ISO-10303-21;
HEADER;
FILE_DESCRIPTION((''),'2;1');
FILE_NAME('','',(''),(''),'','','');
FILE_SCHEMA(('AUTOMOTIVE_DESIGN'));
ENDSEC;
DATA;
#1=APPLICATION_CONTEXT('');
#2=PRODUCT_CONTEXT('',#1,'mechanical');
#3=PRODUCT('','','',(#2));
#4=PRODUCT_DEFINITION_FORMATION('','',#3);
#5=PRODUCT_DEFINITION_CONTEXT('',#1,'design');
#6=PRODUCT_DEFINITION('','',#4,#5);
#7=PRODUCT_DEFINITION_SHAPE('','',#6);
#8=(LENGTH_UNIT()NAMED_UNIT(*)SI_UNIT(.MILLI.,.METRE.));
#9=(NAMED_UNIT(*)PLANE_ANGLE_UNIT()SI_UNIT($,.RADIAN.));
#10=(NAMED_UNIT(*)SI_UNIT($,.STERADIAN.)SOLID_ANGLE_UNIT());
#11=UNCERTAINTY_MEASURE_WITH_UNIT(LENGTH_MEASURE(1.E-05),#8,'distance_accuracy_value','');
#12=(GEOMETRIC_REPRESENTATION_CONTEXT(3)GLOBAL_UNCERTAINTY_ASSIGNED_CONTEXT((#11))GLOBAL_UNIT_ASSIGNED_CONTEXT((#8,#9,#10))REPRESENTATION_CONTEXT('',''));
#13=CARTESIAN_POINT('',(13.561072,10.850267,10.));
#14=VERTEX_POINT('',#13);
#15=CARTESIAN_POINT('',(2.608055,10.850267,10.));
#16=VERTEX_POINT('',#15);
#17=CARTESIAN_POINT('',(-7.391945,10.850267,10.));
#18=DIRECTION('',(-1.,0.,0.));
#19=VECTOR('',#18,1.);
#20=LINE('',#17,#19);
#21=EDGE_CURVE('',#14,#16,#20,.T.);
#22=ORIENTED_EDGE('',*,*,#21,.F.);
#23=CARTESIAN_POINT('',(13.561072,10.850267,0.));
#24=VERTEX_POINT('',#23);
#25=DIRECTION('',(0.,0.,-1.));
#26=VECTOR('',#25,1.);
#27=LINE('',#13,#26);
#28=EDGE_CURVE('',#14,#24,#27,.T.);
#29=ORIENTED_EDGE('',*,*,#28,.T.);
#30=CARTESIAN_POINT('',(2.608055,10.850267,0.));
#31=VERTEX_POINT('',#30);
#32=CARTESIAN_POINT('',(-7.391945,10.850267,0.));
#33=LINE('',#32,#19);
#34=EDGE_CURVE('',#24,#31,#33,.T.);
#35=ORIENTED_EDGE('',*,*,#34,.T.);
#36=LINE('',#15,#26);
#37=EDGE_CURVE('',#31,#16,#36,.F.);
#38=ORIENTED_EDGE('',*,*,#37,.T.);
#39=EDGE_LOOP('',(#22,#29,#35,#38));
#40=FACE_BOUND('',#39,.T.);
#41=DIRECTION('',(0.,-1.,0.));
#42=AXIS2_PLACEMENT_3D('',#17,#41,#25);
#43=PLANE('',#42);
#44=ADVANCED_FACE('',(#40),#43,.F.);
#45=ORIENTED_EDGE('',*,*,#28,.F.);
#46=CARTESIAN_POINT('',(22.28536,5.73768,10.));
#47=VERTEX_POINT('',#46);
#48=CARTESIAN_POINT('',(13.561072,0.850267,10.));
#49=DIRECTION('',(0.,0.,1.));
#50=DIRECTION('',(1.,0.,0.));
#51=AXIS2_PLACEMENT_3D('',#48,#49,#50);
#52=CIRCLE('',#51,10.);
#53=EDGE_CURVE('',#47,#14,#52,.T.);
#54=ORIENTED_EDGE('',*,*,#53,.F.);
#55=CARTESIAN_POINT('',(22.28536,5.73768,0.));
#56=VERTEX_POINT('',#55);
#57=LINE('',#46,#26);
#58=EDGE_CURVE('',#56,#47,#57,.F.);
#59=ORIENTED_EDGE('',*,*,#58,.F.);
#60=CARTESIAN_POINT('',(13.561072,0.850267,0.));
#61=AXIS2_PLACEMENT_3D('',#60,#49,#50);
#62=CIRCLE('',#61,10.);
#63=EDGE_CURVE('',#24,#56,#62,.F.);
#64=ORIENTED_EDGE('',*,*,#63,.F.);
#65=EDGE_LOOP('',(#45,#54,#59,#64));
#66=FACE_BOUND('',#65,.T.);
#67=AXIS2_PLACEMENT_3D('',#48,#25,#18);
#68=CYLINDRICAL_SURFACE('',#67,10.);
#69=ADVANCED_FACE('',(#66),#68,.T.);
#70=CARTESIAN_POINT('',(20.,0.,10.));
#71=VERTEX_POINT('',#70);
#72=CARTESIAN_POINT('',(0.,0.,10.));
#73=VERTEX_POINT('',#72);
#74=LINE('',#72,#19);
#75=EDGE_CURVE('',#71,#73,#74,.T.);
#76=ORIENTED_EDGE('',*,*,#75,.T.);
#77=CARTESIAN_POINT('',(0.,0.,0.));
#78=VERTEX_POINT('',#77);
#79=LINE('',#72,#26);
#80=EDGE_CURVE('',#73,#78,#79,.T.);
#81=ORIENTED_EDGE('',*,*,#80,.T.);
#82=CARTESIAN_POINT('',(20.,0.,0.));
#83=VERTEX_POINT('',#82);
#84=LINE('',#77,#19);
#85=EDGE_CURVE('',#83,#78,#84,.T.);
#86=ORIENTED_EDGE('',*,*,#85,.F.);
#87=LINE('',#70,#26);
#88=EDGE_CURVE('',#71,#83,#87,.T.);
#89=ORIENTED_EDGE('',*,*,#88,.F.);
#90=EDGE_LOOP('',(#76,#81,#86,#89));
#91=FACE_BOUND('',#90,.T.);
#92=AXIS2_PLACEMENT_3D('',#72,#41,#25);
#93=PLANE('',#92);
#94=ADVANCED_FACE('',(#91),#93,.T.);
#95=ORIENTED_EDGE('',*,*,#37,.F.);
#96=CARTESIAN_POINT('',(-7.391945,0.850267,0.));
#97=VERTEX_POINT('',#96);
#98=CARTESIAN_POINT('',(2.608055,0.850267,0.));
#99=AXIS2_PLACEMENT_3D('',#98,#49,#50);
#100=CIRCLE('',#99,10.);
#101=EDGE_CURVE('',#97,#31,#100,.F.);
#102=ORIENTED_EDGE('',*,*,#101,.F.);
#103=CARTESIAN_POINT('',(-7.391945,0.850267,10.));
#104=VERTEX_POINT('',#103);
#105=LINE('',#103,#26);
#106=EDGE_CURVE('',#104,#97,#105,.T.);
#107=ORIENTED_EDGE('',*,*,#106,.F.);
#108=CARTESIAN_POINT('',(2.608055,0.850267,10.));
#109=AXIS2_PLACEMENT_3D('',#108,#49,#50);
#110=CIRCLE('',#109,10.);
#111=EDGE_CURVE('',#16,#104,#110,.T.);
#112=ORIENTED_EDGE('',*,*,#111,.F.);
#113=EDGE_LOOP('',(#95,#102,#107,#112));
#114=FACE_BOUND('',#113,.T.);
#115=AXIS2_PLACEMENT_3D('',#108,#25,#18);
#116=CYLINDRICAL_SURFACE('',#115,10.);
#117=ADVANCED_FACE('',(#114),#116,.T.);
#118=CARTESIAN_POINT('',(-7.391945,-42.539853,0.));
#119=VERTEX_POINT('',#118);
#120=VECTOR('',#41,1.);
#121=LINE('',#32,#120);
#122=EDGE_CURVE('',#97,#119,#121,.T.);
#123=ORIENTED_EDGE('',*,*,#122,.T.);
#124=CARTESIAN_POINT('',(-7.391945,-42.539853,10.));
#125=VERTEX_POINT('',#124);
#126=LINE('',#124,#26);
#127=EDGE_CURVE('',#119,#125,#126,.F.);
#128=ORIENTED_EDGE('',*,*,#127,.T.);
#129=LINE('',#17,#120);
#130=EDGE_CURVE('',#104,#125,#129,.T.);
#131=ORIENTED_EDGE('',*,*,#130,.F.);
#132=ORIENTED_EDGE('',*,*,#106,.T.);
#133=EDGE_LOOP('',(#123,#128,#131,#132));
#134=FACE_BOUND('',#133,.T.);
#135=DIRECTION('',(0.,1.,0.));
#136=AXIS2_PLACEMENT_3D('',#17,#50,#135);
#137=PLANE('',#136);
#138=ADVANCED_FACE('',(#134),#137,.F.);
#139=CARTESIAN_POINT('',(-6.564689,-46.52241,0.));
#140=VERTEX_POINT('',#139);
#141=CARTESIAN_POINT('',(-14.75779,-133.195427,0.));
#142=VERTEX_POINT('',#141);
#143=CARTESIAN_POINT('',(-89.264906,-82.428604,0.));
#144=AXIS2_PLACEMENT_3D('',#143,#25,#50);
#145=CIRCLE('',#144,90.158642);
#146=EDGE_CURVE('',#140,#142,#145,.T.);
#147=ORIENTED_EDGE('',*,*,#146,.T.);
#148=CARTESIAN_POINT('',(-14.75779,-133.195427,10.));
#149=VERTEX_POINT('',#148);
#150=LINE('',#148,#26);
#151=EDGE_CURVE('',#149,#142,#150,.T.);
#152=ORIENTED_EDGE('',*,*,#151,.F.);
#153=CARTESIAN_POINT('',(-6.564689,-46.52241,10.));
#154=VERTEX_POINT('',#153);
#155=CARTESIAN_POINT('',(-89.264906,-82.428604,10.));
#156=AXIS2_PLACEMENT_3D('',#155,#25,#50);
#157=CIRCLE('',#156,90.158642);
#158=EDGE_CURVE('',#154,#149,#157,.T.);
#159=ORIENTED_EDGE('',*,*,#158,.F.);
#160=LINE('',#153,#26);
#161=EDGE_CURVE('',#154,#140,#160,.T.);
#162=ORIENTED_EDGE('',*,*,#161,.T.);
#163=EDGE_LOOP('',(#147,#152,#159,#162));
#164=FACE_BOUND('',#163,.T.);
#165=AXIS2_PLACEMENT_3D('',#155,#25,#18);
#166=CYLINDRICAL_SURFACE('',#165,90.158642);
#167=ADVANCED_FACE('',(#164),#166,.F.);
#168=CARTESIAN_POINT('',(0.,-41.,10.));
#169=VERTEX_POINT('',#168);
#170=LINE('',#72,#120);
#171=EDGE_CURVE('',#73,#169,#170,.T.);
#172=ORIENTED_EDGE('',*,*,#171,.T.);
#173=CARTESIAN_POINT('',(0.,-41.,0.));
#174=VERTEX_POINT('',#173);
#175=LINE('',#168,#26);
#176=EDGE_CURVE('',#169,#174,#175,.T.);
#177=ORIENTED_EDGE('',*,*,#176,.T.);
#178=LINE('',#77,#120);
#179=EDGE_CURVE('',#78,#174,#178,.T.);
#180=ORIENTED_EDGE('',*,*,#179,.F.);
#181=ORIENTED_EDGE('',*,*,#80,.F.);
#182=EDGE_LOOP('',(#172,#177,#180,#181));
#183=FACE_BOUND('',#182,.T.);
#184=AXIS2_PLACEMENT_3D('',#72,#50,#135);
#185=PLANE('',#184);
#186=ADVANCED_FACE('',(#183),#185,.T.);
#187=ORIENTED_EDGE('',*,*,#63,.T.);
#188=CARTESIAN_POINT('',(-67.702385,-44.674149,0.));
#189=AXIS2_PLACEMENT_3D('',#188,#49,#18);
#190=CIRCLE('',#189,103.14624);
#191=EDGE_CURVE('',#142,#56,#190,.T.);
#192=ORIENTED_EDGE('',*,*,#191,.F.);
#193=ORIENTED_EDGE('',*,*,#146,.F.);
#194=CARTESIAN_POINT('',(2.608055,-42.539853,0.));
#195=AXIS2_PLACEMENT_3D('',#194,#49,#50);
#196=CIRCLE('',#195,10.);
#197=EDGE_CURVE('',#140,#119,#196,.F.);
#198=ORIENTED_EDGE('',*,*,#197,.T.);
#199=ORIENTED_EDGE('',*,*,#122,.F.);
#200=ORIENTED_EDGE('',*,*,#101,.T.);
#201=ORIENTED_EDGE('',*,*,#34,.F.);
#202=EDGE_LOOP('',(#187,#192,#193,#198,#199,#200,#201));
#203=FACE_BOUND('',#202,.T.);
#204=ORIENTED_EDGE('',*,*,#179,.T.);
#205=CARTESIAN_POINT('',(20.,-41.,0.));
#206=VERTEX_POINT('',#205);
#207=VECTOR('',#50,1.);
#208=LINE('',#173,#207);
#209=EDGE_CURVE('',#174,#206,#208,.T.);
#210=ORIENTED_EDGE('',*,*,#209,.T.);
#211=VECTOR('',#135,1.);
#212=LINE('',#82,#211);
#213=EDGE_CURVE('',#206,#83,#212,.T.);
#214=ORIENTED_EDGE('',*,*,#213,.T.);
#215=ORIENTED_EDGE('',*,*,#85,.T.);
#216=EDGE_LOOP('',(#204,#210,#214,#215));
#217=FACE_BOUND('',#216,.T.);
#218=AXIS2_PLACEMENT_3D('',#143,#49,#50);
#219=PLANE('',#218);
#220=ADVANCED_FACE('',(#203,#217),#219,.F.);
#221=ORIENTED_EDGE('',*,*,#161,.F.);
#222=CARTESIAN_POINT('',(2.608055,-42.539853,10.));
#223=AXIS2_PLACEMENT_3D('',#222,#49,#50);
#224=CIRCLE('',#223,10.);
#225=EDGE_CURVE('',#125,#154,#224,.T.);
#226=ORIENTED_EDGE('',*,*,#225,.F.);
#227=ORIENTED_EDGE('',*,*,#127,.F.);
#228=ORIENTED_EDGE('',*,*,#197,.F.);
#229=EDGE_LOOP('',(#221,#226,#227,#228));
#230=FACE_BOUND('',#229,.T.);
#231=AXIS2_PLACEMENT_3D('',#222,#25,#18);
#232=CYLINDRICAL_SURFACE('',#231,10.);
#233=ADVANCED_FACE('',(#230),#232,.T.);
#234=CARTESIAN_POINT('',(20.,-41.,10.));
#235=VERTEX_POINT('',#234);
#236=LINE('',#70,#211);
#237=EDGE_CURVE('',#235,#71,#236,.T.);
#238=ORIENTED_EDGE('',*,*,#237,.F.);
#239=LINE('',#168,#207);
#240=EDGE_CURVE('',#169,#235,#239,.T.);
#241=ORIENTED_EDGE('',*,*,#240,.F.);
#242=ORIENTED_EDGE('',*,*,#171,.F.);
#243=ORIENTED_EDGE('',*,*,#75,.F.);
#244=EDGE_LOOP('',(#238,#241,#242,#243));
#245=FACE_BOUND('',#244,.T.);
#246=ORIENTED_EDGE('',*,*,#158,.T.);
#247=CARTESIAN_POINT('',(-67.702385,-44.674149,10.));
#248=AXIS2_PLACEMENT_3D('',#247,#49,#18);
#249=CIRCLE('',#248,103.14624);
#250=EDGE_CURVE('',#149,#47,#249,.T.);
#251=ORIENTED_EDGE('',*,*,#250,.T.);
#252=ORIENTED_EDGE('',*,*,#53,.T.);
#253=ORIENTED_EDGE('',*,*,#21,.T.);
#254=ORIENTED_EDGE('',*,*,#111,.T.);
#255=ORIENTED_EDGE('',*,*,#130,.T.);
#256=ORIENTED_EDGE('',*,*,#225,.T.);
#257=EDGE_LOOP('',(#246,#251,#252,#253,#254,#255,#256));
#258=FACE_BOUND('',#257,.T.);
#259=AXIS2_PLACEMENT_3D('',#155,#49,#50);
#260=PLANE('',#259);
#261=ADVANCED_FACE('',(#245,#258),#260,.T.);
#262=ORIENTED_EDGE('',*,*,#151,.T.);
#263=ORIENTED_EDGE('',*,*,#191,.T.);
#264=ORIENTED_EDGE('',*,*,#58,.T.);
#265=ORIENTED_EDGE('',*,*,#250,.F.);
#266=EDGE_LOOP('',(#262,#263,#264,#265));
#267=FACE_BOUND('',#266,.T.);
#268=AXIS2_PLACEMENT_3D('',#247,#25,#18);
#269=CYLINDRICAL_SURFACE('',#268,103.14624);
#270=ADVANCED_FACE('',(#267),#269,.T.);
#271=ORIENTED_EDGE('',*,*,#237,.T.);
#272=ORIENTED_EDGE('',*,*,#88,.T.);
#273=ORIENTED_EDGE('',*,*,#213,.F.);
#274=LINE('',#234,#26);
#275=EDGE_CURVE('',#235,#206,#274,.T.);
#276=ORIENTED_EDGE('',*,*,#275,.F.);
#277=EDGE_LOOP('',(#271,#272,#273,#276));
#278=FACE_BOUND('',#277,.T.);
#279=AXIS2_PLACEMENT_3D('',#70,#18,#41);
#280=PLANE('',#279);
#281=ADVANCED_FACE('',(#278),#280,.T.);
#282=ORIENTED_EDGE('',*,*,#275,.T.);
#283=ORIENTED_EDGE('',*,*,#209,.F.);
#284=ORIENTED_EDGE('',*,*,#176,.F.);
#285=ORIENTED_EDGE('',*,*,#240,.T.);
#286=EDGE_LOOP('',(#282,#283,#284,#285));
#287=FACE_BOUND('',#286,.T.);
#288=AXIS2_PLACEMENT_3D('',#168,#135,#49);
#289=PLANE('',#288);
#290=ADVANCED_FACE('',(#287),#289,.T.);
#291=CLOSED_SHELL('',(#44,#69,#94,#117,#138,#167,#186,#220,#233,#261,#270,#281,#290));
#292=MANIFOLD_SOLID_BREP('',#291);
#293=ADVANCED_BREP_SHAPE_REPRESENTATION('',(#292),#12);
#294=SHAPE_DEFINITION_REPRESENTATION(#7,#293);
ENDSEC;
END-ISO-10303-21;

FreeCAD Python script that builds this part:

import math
import FreeCAD as App
import Part
import Sketcher

V = App.Vector


def edges_at(feature, points):
    """Names of the edges that pass closest to the given points."""
    edges = feature.Shape.Edges
    near = lambda p: min(range(len(edges)), key=lambda i: edges[i].distToShape(Part.Vertex(*p))[0])
    return sorted({f"Edge{near(p) + 1}" for p in points})

doc = App.newDocument("Part")
body = doc.addObject("PartDesign::Body", "Body")

# Sketch on XY plane
sketch1 = body.newObject("Sketcher::SketchObject", "Sketch")
sketch1.AttachmentSupport = (doc.getObject("XY_Plane"), [""])
sketch1.MapMode = "FlatFace"
sketch1.addGeometry([
    Part.LineSegment(V(19, 11, 0), V(-7, 11, 0)),  # 0
    Part.LineSegment(V(-7, 11, 0), V(-7, -45, 0)),  # 1
    Part.ArcOfCircle(Part.Circle(V(-89, -82, 0), V(0, 0, 1), 90), math.radians(-34), math.radians(25)),  # 2
    Part.ArcOfCircle(Part.Circle(V(-68, -45, 0), V(0, 0, 1), 103), math.radians(-59), math.radians(33)),  # 3
    Part.LineSegment(V(0, -41, 0), V(0, 0, 0)),  # 4
    Part.LineSegment(V(0, 0, 0), V(20, 0, 0)),  # 5
    Part.LineSegment(V(20, 0, 0), V(20, -41, 0)),  # 6
    Part.LineSegment(V(20, -41, 0), V(0, -41, 0)),  # 7
], False)
sketch1.addConstraint([
    Sketcher.Constraint("Coincident", 0, 2, 1, 1),
    Sketcher.Constraint("Coincident", 1, 2, 2, 2),
    Sketcher.Constraint("Coincident", 2, 1, 3, 1),
    Sketcher.Constraint("Coincident", 3, 2, 0, 1),
    Sketcher.Constraint("Coincident", 4, 2, 5, 1),
    Sketcher.Constraint("Coincident", 5, 2, 6, 1),
    Sketcher.Constraint("Coincident", 6, 2, 7, 1),
    Sketcher.Constraint("Coincident", 7, 2, 4, 1),
    Sketcher.Constraint("Horizontal", 0),
    Sketcher.Constraint("Vertical", 1),
    Sketcher.Constraint("Vertical", 4),
    Sketcher.Constraint("Horizontal", 5),
    Sketcher.Constraint("Vertical", 6),
    Sketcher.Constraint("Horizontal", 7),
    Sketcher.Constraint("Coincident", 4, 2, -1, 1),
    Sketcher.Constraint("Horizontal", 3, 3, 1, 2),
    Sketcher.Constraint("DistanceX", 5, 1, 5, 2, 20.0),
    Sketcher.Constraint("DistanceY", 4, 1, 4, 2, 41.0),
    Sketcher.Constraint("Radius", 2, 90.158642),
    Sketcher.Constraint("Radius", 3, 103.14624),
    Sketcher.Constraint("DistanceX", 0, 2, 0, 1, 26.615884),
    Sketcher.Constraint("DistanceY", 1, 2, 1, 1, 55.524416),
    Sketcher.Constraint("DistanceY", 3, 3, -1, 1, 44.674149),
    Sketcher.Constraint("DistanceX", 2, 1, -1, 1, 14.75779),
    Sketcher.Constraint("DistanceX", -1, 1, 3, 2, 19.22394),
])
pad1 = body.newObject("PartDesign::Pad", "Pad")
pad1.Profile = sketch1
pad1.Length = 10
doc.recompute()

fillet = body.newObject("PartDesign::Fillet", "Fillet")
fillet.Base = (pad1, edges_at(pad1, [(19.224, 10.85, 5)]))
fillet.Radius = 10
doc.recompute()

fillet2 = body.newObject("PartDesign::Fillet", "Fillet001")
fillet2.Base = (fillet, edges_at(fillet, [(-7.392, -44.674, 5), (-7.392, 10.85, 5)]))
fillet2.Radius = 10

doc.recompute()
